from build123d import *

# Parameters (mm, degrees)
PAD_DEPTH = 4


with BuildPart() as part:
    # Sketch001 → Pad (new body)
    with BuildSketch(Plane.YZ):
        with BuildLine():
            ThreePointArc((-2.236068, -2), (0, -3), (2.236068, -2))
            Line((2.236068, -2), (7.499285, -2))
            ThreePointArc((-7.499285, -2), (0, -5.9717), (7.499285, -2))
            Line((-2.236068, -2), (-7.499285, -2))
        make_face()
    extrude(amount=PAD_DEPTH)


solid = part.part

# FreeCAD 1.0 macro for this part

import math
import FreeCAD as App
import Part
import Sketcher

V = App.Vector

doc = App.newDocument("Part")
params = doc.addObject("Spreadsheet::Sheet", "Params")
for row, (alias, value) in enumerate([
    ("sketch1_radius", "3 mm"),
    ("pad1_length", "4 mm"),
], start=1):
    params.set(f"A{row}", alias)
    params.set(f"B{row}", "=" + value)
    params.setAlias(f"B{row}", alias)

body = doc.addObject("PartDesign::Body", "Body")

# Sketch on YZ plane
sketch1 = body.newObject("Sketcher::SketchObject", "Sketch")
sketch1.AttachmentSupport = (doc.getObject("YZ_Plane"), [""])
sketch1.MapMode = "FlatFace"
sketch1.addGeometry([
    Part.ArcOfCircle(Part.Circle(V(0, 0, 0), V(0, 0, 1), 3), math.radians(-138.189685), math.radians(-41.810315)),
    Part.LineSegment(V(-2.236068, -2, 0), V(-7.499285, -2, 0)),
    Part.ArcOfCircle(Part.Circle(V(0, 3.09415, 0), V(0, 0, 1), 9.06585), math.radians(-145.812328), math.radians(-34.187672)),
    Part.LineSegment(V(7.499285, -2, 0), V(2.236068, -2, 0)),
], False)
sketch1.addConstraint([
    Sketcher.Constraint("Coincident", 0, 1, 1, 1),
    Sketcher.Constraint("Coincident", 1, 2, 2, 1),
    Sketcher.Constraint("Coincident", 2, 2, 3, 1),
    Sketcher.Constraint("Coincident", 3, 2, 0, 2),
    Sketcher.Constraint("Horizontal", 1),
    Sketcher.Constraint("Horizontal", 3),
    Sketcher.Constraint("Coincident", 0, 3, -1, 1),
    Sketcher.Constraint("Symmetric", 1, 2, 2, 2, -2),
    Sketcher.Constraint("Radius", 0, 3.0),
    Sketcher.Constraint("DistanceY", 0, 1, -1, 1, 2.0),
    Sketcher.Constraint("Radius", 2, 9.06585),
    Sketcher.Constraint("DistanceX", 1, 2, 1, 1, 5.263217),
])
sketch1.setExpression("Constraints[8]", "Params.sketch1_radius")
pad1 = body.newObject("PartDesign::Pad", "Pad")
pad1.Profile = sketch1
pad1.setExpression("Length", "Params.pad1_length")

doc.recompute()
